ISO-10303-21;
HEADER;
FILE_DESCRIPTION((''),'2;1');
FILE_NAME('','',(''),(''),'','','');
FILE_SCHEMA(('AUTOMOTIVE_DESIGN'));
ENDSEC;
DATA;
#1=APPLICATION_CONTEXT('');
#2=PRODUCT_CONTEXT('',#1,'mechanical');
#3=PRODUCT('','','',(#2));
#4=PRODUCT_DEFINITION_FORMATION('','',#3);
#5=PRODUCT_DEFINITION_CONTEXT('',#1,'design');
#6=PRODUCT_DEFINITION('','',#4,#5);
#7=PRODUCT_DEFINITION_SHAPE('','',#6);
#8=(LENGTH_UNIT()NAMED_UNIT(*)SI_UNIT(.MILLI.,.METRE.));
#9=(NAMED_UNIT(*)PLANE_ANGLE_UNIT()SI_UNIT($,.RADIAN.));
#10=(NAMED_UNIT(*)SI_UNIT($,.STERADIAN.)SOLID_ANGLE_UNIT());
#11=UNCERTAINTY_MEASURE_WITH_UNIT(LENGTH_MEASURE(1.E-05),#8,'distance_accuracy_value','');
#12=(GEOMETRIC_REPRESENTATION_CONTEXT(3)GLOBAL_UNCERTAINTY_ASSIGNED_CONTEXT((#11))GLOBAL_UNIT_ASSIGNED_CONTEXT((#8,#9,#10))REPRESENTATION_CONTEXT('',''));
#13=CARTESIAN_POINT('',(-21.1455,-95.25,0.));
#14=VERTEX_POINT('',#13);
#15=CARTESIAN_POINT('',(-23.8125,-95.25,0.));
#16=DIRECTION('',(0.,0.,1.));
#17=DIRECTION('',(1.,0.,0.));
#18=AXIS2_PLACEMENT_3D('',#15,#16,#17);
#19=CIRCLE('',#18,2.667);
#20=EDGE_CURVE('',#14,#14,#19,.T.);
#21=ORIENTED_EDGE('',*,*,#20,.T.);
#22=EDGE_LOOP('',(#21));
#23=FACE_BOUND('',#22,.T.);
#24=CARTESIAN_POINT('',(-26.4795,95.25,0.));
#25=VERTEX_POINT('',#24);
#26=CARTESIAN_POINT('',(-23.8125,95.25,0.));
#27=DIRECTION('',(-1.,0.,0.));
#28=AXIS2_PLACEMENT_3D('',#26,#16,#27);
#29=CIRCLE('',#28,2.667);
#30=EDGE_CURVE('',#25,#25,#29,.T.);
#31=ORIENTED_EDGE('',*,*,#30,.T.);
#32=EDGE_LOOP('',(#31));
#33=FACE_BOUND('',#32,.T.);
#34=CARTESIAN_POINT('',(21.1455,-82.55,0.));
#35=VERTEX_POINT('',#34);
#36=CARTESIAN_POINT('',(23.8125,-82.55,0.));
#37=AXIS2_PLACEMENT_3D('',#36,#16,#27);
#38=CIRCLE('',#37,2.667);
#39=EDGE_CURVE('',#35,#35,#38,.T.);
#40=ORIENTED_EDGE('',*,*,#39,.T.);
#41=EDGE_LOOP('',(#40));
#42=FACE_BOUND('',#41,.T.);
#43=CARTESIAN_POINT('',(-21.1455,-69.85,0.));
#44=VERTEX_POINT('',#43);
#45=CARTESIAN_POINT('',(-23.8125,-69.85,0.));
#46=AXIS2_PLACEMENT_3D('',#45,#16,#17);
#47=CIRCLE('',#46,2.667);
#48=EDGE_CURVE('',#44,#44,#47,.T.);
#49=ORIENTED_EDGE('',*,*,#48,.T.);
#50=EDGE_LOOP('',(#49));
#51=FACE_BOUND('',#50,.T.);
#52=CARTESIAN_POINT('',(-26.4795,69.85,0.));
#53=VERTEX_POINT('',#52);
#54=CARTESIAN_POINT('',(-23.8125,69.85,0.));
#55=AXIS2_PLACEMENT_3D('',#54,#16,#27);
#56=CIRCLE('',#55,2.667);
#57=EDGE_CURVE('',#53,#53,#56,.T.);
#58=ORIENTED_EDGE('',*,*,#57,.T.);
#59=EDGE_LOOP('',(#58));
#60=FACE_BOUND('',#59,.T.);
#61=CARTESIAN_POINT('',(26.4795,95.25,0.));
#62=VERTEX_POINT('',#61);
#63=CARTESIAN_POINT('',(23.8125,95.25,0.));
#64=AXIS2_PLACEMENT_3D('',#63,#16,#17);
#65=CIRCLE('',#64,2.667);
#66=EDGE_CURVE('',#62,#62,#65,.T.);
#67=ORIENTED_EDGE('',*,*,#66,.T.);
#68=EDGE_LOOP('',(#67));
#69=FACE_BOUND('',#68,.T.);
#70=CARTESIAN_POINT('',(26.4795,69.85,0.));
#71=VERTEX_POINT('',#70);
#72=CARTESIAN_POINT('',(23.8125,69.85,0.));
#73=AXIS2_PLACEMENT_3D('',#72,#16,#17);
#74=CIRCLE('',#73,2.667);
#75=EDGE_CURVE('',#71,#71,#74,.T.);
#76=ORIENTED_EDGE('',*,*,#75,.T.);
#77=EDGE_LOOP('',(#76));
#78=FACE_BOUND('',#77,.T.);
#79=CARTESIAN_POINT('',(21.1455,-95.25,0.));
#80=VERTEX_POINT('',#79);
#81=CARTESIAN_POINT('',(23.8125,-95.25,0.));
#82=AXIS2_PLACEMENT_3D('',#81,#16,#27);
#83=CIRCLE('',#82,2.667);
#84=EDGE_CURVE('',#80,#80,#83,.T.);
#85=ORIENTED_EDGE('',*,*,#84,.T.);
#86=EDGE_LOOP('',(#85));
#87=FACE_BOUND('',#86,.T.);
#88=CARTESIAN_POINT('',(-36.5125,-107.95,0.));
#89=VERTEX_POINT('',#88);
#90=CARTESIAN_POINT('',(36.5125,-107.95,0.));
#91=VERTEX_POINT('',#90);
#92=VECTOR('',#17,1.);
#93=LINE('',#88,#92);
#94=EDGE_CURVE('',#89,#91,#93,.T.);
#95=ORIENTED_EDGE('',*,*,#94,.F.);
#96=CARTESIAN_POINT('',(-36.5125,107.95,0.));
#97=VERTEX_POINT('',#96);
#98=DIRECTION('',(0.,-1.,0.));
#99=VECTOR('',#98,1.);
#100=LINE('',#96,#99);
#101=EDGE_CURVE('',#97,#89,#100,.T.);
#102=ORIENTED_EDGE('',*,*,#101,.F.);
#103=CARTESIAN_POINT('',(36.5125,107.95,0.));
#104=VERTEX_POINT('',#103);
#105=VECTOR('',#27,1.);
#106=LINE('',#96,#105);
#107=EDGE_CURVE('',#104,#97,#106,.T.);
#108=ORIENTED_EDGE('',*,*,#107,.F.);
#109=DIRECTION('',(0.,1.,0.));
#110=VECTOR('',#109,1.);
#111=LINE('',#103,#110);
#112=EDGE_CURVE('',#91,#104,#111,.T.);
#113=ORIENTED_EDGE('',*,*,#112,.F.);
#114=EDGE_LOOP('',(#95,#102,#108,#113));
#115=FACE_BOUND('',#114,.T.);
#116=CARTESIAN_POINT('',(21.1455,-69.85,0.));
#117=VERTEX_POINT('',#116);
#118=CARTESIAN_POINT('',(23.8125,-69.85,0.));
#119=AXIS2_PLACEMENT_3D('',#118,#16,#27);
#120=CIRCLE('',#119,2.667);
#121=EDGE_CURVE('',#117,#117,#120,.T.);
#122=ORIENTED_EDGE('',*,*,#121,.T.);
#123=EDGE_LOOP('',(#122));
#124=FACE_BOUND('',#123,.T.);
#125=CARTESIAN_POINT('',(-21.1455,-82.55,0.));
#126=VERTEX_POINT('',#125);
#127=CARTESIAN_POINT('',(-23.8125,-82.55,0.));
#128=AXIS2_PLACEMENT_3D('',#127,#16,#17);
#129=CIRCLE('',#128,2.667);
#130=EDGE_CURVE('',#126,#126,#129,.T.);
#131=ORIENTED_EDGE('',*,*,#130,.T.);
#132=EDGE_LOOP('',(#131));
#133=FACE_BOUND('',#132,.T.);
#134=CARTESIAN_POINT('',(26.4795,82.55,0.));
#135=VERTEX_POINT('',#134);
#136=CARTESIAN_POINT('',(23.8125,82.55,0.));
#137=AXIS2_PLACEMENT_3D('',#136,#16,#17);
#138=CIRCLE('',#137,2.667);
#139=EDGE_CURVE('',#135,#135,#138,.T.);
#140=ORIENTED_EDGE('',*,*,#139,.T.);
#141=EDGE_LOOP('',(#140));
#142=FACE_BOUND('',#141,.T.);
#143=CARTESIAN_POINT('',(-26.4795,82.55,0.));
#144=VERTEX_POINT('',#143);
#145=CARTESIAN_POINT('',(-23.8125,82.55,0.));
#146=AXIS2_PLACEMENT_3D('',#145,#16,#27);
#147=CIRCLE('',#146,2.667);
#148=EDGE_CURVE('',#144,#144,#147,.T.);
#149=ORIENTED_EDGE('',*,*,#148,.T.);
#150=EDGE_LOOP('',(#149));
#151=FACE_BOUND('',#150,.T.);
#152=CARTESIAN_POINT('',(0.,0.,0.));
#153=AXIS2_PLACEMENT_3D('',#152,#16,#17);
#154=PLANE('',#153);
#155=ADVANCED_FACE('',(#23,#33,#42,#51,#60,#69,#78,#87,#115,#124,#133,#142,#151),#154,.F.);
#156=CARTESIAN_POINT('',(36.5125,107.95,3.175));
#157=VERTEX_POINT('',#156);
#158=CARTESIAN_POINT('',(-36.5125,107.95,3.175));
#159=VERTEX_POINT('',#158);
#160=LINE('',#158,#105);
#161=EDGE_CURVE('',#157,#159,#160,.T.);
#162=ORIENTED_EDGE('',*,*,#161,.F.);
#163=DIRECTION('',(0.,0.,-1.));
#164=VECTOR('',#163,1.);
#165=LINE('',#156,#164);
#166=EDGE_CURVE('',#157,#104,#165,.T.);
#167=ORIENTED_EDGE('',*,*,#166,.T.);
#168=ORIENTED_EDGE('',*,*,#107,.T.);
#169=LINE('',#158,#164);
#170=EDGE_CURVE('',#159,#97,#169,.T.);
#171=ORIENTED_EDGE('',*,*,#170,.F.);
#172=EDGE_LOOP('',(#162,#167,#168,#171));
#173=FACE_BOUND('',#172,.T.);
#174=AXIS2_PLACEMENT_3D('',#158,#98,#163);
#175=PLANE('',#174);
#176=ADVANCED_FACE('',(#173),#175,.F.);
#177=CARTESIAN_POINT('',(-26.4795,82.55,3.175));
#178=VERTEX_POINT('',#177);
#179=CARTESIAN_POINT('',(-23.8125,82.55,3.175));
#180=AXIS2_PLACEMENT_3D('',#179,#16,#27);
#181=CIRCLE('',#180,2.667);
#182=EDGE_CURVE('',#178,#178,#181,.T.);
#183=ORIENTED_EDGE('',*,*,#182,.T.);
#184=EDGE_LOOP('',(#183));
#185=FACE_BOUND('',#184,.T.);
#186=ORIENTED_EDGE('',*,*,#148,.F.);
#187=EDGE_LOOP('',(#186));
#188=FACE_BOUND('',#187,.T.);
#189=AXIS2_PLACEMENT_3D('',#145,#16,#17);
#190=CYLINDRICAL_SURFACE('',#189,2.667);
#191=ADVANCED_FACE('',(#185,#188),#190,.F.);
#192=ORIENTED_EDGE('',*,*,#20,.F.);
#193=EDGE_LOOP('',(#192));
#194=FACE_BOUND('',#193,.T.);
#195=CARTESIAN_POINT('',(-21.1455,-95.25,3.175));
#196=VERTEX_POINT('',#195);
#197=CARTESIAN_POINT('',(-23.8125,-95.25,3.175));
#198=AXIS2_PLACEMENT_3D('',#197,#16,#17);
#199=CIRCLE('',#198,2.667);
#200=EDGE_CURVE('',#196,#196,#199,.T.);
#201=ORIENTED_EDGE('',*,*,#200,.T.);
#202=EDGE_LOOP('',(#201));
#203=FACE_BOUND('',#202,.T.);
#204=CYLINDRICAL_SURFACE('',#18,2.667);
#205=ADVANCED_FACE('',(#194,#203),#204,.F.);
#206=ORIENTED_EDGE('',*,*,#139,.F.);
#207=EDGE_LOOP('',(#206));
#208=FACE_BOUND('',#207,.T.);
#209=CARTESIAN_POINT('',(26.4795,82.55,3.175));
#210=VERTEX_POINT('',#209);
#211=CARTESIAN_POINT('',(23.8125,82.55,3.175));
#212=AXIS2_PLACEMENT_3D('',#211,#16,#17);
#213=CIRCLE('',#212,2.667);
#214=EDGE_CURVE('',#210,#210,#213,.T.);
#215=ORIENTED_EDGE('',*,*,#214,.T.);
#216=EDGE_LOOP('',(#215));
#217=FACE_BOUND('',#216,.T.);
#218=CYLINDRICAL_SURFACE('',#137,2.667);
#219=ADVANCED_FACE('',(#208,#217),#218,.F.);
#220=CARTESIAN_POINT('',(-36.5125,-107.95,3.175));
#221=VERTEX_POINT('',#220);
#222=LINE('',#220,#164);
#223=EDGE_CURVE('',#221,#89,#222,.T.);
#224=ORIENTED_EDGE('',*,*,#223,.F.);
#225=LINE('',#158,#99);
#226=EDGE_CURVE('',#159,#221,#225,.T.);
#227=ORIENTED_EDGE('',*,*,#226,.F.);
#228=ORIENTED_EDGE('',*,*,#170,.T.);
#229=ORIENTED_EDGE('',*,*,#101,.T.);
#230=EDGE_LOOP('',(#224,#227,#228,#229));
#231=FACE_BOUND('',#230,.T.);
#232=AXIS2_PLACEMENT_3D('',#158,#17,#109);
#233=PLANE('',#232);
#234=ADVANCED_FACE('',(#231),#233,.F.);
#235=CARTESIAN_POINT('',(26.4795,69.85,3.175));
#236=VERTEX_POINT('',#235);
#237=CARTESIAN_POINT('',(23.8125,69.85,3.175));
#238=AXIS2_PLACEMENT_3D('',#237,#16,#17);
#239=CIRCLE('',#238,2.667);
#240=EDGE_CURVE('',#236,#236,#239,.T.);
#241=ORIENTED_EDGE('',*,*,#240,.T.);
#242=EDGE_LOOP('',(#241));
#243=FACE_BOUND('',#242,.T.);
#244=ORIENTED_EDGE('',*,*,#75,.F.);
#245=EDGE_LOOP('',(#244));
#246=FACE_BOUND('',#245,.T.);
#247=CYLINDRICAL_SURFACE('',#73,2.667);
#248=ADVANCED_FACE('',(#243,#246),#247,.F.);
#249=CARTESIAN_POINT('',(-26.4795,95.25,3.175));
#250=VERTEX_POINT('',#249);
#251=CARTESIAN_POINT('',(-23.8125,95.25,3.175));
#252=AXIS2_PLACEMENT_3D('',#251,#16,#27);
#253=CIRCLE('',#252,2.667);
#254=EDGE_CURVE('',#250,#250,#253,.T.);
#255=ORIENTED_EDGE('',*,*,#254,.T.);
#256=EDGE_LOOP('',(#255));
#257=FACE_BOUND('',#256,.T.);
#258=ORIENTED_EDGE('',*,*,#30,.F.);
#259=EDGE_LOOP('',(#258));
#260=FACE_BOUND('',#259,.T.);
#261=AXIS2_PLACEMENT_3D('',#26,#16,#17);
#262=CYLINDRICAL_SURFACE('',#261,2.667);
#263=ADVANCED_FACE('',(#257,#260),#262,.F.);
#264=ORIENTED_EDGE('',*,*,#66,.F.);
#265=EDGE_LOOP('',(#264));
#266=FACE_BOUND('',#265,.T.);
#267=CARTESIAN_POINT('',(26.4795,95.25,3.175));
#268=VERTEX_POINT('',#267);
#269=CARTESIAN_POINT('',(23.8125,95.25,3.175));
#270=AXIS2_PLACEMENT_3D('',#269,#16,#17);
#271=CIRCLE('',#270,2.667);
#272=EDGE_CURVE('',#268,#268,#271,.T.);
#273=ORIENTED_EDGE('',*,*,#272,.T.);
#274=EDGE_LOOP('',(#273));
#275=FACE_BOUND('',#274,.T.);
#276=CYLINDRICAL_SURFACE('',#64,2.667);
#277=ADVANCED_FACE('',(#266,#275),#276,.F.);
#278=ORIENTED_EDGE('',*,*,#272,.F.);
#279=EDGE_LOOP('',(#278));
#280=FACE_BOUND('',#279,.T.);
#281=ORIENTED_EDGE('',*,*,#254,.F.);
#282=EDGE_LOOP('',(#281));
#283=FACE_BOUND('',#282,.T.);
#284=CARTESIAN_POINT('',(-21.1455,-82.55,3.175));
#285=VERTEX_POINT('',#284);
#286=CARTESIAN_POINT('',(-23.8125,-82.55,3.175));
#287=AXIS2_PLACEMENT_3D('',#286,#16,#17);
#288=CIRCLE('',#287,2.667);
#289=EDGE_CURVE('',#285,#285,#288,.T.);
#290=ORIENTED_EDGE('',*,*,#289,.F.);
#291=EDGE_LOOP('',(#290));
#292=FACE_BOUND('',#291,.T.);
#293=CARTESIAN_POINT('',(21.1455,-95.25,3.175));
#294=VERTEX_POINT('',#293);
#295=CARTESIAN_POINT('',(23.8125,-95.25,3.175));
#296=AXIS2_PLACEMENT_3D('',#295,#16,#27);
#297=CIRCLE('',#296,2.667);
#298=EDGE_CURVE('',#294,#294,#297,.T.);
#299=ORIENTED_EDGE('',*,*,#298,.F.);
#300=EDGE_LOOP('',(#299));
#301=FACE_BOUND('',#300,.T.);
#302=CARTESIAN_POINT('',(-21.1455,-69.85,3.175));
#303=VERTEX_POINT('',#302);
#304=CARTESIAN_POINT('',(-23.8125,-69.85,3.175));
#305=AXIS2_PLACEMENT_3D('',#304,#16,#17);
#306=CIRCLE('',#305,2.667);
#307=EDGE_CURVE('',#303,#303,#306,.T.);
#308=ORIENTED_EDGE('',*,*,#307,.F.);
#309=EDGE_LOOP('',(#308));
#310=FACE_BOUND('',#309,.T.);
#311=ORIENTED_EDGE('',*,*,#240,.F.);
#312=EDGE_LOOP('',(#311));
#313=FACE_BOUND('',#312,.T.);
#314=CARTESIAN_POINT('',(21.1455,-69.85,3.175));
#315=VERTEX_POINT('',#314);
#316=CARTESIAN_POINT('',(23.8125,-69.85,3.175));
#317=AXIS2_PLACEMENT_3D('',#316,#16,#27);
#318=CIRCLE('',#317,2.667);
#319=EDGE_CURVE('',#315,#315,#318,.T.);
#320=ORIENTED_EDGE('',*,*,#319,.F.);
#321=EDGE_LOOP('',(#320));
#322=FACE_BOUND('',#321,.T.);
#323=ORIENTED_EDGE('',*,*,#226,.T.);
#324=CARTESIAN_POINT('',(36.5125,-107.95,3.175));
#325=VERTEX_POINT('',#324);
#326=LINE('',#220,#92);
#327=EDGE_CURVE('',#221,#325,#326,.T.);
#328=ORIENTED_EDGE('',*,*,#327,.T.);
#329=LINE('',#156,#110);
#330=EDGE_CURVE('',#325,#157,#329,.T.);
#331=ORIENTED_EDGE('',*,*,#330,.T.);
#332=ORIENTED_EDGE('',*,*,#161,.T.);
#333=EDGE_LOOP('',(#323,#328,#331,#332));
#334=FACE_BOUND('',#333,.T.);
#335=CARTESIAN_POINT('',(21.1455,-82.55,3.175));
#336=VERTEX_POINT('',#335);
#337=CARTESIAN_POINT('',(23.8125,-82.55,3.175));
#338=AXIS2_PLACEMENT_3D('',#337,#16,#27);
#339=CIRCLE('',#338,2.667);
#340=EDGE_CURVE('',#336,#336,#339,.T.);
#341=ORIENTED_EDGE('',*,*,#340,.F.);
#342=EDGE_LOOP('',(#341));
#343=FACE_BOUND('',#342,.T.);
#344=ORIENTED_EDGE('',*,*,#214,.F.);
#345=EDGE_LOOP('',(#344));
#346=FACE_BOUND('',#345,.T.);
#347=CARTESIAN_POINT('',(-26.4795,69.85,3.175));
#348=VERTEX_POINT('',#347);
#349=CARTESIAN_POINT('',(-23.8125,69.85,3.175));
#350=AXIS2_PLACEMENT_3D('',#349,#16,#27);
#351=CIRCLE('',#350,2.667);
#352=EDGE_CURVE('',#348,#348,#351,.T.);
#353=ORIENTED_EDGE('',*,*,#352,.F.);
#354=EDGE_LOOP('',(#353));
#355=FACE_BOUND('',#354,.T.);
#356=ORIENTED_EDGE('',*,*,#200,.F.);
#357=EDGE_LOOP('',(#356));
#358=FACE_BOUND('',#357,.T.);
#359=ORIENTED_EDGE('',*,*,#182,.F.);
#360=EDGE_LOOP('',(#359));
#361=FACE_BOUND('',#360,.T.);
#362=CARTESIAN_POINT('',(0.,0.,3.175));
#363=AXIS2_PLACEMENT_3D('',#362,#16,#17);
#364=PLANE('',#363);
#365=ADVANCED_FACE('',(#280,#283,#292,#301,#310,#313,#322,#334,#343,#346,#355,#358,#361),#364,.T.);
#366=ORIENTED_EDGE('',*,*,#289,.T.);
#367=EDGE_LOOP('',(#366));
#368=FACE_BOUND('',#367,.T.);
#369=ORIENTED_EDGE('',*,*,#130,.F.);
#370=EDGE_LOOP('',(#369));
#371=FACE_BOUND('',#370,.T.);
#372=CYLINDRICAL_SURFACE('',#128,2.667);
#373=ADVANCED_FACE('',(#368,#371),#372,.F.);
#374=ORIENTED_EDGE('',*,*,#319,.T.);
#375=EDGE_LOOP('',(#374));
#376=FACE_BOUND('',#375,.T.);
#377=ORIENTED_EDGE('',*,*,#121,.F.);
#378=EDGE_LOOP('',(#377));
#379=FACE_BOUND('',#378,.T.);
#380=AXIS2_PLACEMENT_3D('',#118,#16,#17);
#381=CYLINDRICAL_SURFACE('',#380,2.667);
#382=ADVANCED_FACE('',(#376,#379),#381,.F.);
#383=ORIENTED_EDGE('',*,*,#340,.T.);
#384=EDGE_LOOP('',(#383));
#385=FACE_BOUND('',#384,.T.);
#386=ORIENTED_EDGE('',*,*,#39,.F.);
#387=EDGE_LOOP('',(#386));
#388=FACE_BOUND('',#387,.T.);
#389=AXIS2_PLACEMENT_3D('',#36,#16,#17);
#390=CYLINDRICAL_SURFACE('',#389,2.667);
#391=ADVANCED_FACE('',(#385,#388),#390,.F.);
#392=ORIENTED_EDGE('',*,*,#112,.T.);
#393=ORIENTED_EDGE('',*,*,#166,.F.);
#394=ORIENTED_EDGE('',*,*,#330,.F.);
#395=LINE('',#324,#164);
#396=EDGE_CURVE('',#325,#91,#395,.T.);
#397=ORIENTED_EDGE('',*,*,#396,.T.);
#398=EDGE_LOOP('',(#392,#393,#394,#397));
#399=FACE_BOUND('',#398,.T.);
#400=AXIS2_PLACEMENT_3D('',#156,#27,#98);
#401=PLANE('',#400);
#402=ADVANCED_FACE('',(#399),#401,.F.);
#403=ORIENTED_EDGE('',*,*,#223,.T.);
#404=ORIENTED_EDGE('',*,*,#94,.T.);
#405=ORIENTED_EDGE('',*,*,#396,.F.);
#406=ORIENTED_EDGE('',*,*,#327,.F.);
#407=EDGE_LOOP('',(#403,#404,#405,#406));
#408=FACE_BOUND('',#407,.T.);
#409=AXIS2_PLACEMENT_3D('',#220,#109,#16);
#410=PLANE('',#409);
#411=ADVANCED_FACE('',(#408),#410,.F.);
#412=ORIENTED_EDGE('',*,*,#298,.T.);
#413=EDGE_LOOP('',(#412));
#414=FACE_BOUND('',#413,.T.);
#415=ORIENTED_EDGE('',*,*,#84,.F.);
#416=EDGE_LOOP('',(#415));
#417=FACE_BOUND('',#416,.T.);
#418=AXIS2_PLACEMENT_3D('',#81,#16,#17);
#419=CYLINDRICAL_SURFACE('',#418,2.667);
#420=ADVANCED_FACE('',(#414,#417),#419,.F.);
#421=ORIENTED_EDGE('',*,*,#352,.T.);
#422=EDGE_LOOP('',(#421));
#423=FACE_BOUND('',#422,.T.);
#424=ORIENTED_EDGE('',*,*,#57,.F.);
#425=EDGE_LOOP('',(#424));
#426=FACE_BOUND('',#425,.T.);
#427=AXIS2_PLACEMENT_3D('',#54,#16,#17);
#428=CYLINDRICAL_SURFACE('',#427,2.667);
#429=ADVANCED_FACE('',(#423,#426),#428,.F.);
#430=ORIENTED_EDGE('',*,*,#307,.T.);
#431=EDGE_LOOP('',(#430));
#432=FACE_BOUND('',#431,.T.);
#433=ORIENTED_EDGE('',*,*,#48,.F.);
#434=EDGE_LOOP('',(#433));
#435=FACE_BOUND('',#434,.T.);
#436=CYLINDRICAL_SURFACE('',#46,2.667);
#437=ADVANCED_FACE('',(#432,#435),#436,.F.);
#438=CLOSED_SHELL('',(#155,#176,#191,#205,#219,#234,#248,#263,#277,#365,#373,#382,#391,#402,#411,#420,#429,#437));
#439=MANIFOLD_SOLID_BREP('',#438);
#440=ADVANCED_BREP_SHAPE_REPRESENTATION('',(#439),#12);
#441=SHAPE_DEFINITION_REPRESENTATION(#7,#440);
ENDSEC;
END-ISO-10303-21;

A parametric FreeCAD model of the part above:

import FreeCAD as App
import Part
import Sketcher
from FreeCAD import Vector
Q = App.Units.Quantity

doc = App.newDocument("Part")
body = doc.addObject("PartDesign::Body", "Body")

# Sketch on XY plane
sketch1 = body.newObject("Sketcher::SketchObject", "Sketch")
sketch1.AttachmentSupport = (doc.getObject("XY_Plane"), [""])
sketch1.MapMode = "FlatFace"
sketch1.addGeometry([
    Part.LineSegment(Vector(-36.5125, 107.95, 0), Vector(-36.5125, -107.95, 0)),
    Part.LineSegment(Vector(-36.5125, -107.95, 0), Vector(36.5125, -107.95, 0)),
    Part.LineSegment(Vector(36.5125, -107.95, 0), Vector(36.5125, 107.95, 0)),
    Part.LineSegment(Vector(36.5125, 107.95, 0), Vector(-36.5125, 107.95, 0)),
], False)
sketch1.addConstraint([
    Sketcher.Constraint("Coincident", 0, 2, 1, 1),
    Sketcher.Constraint("Coincident", 1, 2, 2, 1),
    Sketcher.Constraint("Coincident", 2, 2, 3, 1),
    Sketcher.Constraint("Coincident", 3, 2, 0, 1),
    Sketcher.Constraint("Vertical", 0),
    Sketcher.Constraint("Horizontal", 1),
    Sketcher.Constraint("Vertical", 2),
    Sketcher.Constraint("Horizontal", 3),
    Sketcher.Constraint("Symmetric", 0, 2, 2, 2, -1, 1),
    Sketcher.Constraint("DistanceY", 0, 2, 0, 1, Q("8.5 in")),
    Sketcher.Constraint("DistanceX", 1, 1, 1, 2, Q("2.875 in")),
])
pad1 = body.newObject("PartDesign::Pad", "Pad")
pad1.Profile = sketch1
pad1.Length = Q("0.125 in")

# Sketch on XY plane
sketch2 = body.newObject("Sketcher::SketchObject", "Sketch001")
sketch2.AttachmentSupport = (doc.getObject("XY_Plane"), [""])
sketch2.MapMode = "FlatFace"
sketch2.AttachmentOffset = App.Placement(Vector(0, 0, 0.125 * 25.4), App.Rotation())
sketch2.addGeometry([
    Part.Circle(Vector(-23.8125, -69.85, 0), Vector(0, 0, 1), 2.667),  # 0
    Part.Circle(Vector(-23.8125, -82.55, 0), Vector(0, 0, 1), 2.667),  # 1
    Part.Circle(Vector(-23.8125, -95.25, 0), Vector(0, 0, 1), 2.667),  # 2
    Part.Circle(Vector(-23.8125, 95.25, 0), Vector(0, 0, 1), 2.667),  # 3
    Part.Circle(Vector(-23.8125, 82.55, 0), Vector(0, 0, 1), 2.667),  # 4
    Part.Circle(Vector(-23.8125, 69.85, 0), Vector(0, 0, 1), 2.667),  # 5
    Part.Circle(Vector(23.8125, 95.25, 0), Vector(0, 0, 1), 2.667),  # 6
    Part.Circle(Vector(23.8125, 82.55, 0), Vector(0, 0, 1), 2.667),  # 7
    Part.Circle(Vector(23.8125, 69.85, 0), Vector(0, 0, 1), 2.667),  # 8
    Part.Circle(Vector(23.8125, -95.25, 0), Vector(0, 0, 1), 2.667),  # 9
    Part.Circle(Vector(23.8125, -82.55, 0), Vector(0, 0, 1), 2.667),  # 10
    Part.Circle(Vector(23.8125, -69.85, 0), Vector(0, 0, 1), 2.667),  # 11
], False)
sketch2.addConstraint([
    Sketcher.Constraint("Equal", 0, 1),
    Sketcher.Constraint("Equal", 1, 2),
    Sketcher.Constraint("Equal", 2, 3),
    Sketcher.Constraint("Equal", 3, 4),
    Sketcher.Constraint("Equal", 4, 5),
    Sketcher.Constraint("Equal", 5, 6),
    Sketcher.Constraint("Equal", 6, 7),
    Sketcher.Constraint("Equal", 7, 8),
    Sketcher.Constraint("Equal", 8, 9),
    Sketcher.Constraint("Equal", 9, 10),
    Sketcher.Constraint("Equal", 10, 11),
    Sketcher.Constraint("Symmetric", 2, 3, 6, 3, -1, 1),
    Sketcher.Constraint("Symmetric", 1, 3, 7, 3, -1, 1),
    Sketcher.Constraint("Symmetric", 0, 3, 8, 3, -1, 1),
    Sketcher.Constraint("Symmetric", 3, 3, 9, 3, -1, 1),
    Sketcher.Constraint("Symmetric", 4, 3, 10, 3, -1, 1),
    Sketcher.Constraint("Symmetric", 5, 3, 11, 3, -1, 1),
    Sketcher.Constraint("Symmetric", 3, 3, 6, 3, -2),
    Sketcher.Constraint("Symmetric", 4, 3, 7, 3, -2),
    Sketcher.Constraint("Symmetric", 5, 3, 8, 3, -2),
    Sketcher.Constraint("Vertical", 0, 3, 1, 3),
    Sketcher.Constraint("Vertical", 1, 3, 2, 3),
    Sketcher.Constraint("Diameter", 0, Q("0.21 in")),
    Sketcher.Constraint("DistanceY", 2, 3, 0, 3, Q("1 in")),
    Sketcher.Constraint("DistanceY", 1, 3, 3, 3, Q("7 in")),
    Sketcher.Constraint("DistanceY", 1, 3, 0, 3, Q("0.5 in")),
    Sketcher.Constraint("DistanceX", 0, 3, -1, 1, Q("0.9375 in")),
])
pocket1 = body.newObject("PartDesign::Pocket", "Pocket")
pocket1.Profile = sketch2
pocket1.Length = Q("0.125 in")

doc.recompute()
